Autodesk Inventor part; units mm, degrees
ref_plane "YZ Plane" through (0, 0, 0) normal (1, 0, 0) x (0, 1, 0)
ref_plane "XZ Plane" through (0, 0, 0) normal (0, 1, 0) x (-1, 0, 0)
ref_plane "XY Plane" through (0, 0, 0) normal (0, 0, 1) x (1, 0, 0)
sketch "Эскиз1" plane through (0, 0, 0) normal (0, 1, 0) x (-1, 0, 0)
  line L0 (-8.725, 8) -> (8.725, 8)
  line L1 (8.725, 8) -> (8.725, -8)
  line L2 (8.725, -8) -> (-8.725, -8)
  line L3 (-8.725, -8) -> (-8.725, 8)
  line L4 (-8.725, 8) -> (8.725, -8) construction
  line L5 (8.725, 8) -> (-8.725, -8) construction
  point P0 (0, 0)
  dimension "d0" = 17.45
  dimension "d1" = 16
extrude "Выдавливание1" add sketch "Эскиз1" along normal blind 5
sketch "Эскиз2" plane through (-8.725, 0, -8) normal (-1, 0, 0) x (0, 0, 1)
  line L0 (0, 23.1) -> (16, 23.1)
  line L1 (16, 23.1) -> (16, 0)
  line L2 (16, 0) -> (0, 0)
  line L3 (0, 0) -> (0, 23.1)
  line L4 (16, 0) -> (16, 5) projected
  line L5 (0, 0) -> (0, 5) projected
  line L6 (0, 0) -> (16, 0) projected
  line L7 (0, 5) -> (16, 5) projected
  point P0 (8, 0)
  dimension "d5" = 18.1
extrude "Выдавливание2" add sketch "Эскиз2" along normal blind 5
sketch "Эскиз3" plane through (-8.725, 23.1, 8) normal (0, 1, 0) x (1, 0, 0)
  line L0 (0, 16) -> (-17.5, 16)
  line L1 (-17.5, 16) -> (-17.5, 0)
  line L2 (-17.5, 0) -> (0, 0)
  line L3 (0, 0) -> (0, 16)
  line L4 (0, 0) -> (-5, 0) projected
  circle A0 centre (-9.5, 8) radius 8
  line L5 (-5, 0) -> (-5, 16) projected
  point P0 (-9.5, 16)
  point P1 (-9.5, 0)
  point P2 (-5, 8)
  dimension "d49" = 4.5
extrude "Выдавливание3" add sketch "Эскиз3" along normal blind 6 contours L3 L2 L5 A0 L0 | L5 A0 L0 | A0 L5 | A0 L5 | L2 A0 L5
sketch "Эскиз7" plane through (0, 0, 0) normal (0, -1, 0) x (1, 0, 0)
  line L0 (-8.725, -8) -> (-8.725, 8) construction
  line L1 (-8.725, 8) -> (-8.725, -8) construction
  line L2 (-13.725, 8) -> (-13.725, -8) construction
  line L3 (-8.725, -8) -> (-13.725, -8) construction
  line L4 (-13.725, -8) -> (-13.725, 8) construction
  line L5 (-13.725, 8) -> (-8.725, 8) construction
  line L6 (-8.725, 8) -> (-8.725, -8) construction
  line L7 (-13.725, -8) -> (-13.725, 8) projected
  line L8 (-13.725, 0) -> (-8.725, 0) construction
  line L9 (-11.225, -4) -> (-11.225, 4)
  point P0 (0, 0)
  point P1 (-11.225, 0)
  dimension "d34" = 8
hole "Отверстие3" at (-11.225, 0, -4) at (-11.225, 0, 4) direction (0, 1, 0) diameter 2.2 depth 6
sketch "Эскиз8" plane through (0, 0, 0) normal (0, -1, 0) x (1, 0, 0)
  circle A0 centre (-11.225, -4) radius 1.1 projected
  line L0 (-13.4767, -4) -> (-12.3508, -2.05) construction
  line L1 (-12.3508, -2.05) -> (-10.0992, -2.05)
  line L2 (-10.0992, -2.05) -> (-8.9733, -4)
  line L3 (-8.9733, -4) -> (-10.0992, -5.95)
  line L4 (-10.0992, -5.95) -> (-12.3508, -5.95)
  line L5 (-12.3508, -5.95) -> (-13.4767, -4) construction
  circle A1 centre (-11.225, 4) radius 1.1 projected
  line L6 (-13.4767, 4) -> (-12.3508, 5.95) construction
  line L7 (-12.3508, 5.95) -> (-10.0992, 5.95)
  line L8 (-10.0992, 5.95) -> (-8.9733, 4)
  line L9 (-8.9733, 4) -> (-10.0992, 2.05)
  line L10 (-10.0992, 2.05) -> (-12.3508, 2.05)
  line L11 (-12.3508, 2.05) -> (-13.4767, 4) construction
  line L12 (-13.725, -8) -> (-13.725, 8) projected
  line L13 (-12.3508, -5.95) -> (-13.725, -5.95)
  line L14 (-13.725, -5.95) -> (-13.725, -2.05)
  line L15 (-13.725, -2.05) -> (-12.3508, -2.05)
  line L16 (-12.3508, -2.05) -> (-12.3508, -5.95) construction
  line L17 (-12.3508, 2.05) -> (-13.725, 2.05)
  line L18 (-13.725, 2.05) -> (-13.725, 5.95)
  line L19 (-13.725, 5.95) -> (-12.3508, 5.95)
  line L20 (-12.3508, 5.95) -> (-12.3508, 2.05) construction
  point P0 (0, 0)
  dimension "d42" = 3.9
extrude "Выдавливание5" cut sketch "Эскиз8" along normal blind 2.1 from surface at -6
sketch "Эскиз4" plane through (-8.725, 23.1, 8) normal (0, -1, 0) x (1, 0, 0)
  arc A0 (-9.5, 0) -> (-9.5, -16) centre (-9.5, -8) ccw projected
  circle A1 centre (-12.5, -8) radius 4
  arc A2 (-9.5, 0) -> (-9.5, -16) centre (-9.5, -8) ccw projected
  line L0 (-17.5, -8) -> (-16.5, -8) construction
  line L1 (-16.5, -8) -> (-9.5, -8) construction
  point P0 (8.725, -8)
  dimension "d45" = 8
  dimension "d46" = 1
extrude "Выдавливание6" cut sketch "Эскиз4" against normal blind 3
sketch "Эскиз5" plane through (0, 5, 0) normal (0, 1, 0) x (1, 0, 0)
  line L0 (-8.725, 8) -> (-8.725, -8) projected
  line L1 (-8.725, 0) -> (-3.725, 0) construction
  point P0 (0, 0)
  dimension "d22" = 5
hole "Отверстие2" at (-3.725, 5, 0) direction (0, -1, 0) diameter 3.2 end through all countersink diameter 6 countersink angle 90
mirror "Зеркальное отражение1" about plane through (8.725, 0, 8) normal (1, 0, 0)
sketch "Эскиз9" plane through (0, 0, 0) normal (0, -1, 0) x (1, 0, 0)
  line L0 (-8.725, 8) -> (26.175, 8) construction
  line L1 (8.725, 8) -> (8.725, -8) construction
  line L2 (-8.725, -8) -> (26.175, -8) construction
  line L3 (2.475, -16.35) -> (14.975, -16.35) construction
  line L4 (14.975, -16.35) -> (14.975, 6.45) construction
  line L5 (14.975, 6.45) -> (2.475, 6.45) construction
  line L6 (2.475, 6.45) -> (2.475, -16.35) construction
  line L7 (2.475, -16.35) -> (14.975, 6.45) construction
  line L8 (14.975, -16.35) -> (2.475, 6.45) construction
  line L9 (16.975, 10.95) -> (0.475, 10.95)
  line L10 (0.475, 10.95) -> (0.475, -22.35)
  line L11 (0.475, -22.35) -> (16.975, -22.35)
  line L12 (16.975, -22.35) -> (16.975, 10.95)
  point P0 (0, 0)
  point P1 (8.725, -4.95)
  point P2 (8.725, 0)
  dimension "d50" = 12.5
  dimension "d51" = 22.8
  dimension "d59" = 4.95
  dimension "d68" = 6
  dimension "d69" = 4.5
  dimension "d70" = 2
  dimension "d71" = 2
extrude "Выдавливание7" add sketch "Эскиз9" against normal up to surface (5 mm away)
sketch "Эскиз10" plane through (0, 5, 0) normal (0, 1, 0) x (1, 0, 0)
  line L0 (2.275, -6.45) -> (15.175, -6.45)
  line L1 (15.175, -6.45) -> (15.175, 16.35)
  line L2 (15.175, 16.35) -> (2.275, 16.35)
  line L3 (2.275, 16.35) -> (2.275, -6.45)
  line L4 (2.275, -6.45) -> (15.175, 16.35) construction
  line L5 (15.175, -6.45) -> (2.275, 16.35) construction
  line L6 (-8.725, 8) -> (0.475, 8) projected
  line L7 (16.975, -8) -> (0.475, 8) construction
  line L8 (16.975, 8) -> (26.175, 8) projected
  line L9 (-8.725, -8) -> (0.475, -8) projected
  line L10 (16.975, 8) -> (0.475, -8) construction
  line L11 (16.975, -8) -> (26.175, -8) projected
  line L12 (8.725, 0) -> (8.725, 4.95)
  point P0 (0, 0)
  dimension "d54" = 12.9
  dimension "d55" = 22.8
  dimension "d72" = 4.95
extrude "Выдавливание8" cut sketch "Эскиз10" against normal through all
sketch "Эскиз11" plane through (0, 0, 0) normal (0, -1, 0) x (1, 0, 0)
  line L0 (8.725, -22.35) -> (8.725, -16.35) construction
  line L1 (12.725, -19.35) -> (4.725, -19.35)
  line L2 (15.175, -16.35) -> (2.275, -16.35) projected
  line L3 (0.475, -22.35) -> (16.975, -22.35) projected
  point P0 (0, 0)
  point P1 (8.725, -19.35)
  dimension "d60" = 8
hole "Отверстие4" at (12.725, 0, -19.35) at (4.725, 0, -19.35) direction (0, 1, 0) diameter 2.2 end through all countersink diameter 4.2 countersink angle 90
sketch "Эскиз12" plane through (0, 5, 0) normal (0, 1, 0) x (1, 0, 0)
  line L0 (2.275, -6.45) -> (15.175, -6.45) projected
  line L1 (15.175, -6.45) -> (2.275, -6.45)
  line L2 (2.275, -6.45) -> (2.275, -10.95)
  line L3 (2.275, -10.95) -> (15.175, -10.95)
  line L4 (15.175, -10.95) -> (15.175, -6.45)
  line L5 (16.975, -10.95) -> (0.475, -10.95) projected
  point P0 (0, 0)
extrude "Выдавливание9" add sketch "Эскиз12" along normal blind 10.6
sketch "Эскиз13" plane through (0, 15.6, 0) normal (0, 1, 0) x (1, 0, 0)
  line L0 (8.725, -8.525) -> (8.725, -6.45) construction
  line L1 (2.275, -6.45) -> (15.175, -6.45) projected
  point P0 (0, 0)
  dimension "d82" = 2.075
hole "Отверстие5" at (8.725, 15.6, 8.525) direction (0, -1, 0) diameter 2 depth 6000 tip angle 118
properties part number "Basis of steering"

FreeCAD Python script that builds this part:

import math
import FreeCAD as App
import Part
import Sketcher

V = App.Vector


def add_polygon(sketch, points):
    """Adds a closed chain of lines whose ends are joined by coincident constraints."""
    first, n = sketch.GeometryCount, len(points)
    for a, b in zip(points, points[1:] + points[:1]):
        sketch.addGeometry(Part.LineSegment(App.Vector(*a, 0), App.Vector(*b, 0)), False)
    for i in range(n):
        sketch.addConstraint(Sketcher.Constraint("Coincident", first + i, 2, first + (i + 1) % n, 1))

doc = App.newDocument("Part")
body = doc.addObject("PartDesign::Body", "Body")

sketch1 = body.newObject("Sketcher::SketchObject", "Sketch")
sketch1.AttachmentSupport = (doc.getObject("XZ_Plane"), [""])
sketch1.MapMode = "FlatFace"
add_polygon(sketch1, [(-9, 8), (9, 8), (9, -8), (-9, -8)])
sketch1.addConstraint(Sketcher.Constraint("Horizontal", 0))
sketch1.addConstraint(Sketcher.Constraint("Vertical", 1))
sketch1.addConstraint(Sketcher.Constraint("Horizontal", 2))
sketch1.addConstraint(Sketcher.Constraint("Vertical", 3))
sketch1.addConstraint(Sketcher.Constraint("Symmetric", 0, 2, 2, 2, -1, 1))
sketch1.addConstraint(Sketcher.Constraint("DistanceY", 1, 2, 1, 1, 16.0))
sketch1.addConstraint(Sketcher.Constraint("DistanceX", 0, 1, 0, 2, 17.45))
pad1 = body.newObject("PartDesign::Pad", "Pad")
pad1.Profile = sketch1
pad1.Length = 5
pad1.Reversed = True

sketch2 = body.newObject("Sketcher::SketchObject", "Sketch001")
sketch2.AttachmentSupport = (doc.getObject("YZ_Plane"), [""])
sketch2.MapMode = "FlatFace"
sketch2.AttachmentOffset = App.Placement(V(0, 0, -8.725), App.Rotation())
add_polygon(sketch2, [(23, 8), (23, -8), (0, -8), (0, 8)])
sketch2.addConstraint(Sketcher.Constraint("Vertical", 0))
sketch2.addConstraint(Sketcher.Constraint("Horizontal", 1))
sketch2.addConstraint(Sketcher.Constraint("Vertical", 2))
sketch2.addConstraint(Sketcher.Constraint("Horizontal", 3))
sketch2.addConstraint(Sketcher.Constraint("Symmetric", 1, 2, 2, 2, -1, 1))
sketch2.addConstraint(Sketcher.Constraint("DistanceY", 0, 2, 0, 1, 16.0))
sketch2.addConstraint(Sketcher.Constraint("DistanceX", 1, 2, 1, 1, 23.1))
pad2 = body.newObject("PartDesign::Pad", "Pad001")
pad2.Profile = sketch2
pad2.Length = 5
pad2.Reversed = True

sketch3 = body.newObject("Sketcher::SketchObject", "Sketch002")
sketch3.AttachmentSupport = (doc.getObject("XZ_Plane"), [""])
sketch3.MapMode = "FlatFace"
sketch3.AttachmentOffset = App.Placement(V(0, 0, -23.1), App.Rotation())
sketch3.addGeometry(Part.LineSegment(V(-9, 8, 0), V(-9, -8, 0)), False)
sketch3.addGeometry(Part.LineSegment(V(-9, -8, 0), V(-18, -8, 0)), False)
sketch3.addGeometry(Part.ArcOfCircle(Part.Circle(V(-18, 0, 0), V(0, 0, 1), 8), math.radians(90), math.radians(270)), False)
sketch3.addGeometry(Part.LineSegment(V(-18, 8, 0), V(-9, 8, 0)), False)
sketch3.addConstraint(Sketcher.Constraint("Coincident", 0, 2, 1, 1))
sketch3.addConstraint(Sketcher.Constraint("Tangent", 1, 2, 2, 2))
sketch3.addConstraint(Sketcher.Constraint("Tangent", 2, 1, 3, 1))
sketch3.addConstraint(Sketcher.Constraint("Coincident", 3, 2, 0, 1))
sketch3.addConstraint(Sketcher.Constraint("Vertical", 0))
sketch3.addConstraint(Sketcher.Constraint("Horizontal", 1))
sketch3.addConstraint(Sketcher.Constraint("Horizontal", 3))
sketch3.addConstraint(Sketcher.Constraint("PointOnObject", 2, 3, -1))
sketch3.addConstraint(Sketcher.Constraint("Radius", 2, 8.0))
sketch3.addConstraint(Sketcher.Constraint("DistanceX", 1, 2, 1, 1, 9.5))
sketch3.addConstraint(Sketcher.Constraint("DistanceX", 2, 3, -1, 1, 18.225))
pad3 = body.newObject("PartDesign::Pad", "Pad002")
pad3.Profile = sketch3
pad3.Length = 6
pad3.Reversed = True

sketch4 = body.newObject("Sketcher::SketchObject", "Sketch003")
sketch4.AttachmentSupport = (doc.getObject("XZ_Plane"), [""])
sketch4.MapMode = "FlatFace"
sketch4.addGeometry(Part.Circle(V(-11.2, -4, 0), V(0, 0, 1), 1.1), False)
sketch4.addGeometry(Part.Circle(V(-11.2, 4, 0), V(0, 0, 1), 1.1), False)
sketch4.addConstraint(Sketcher.Constraint("Equal", 0, 1))
sketch4.addConstraint(Sketcher.Constraint("Symmetric", 0, 3, 1, 3, -1))
sketch4.addConstraint(Sketcher.Constraint("Diameter", 0, 2.2))
sketch4.addConstraint(Sketcher.Constraint("DistanceY", 0, 3, -1, 1, 4.0))
sketch4.addConstraint(Sketcher.Constraint("DistanceX", 0, 3, -1, 1, 11.225))
doc.recompute()
hole = body.newObject("PartDesign::Hole", "Hole")
hole.Profile = sketch4
hole.ThreadType = "None"
hole.Diameter = 2.2
hole.DepthType = "Dimension"
hole.Depth = 6
hole.DrillPoint = "Flat"

sketch5 = body.newObject("Sketcher::SketchObject", "Sketch004")
sketch5.AttachmentSupport = (doc.getObject("XZ_Plane"), [""])
sketch5.MapMode = "FlatFace"
sketch5.AttachmentOffset = App.Placement(V(0, 0, -6), App.Rotation())
add_polygon(sketch5, [(-13.7, 6), (-13.7, 2), (-10.1, 2), (-9, 4), (-10.1, 6)])
sketch5.addGeometry(Part.Circle(V(-11.2, 4, 0), V(0, 0, 1), 1.1), False)
add_polygon(sketch5, [(-10.1, -2), (-13.7, -2), (-13.7, -6), (-10.1, -6), (-9, -4)])
sketch5.addGeometry(Part.Circle(V(-11.2, -4, 0), V(0, 0, 1), 1.1), False)
sketch5.addConstraint(Sketcher.Constraint("Vertical", 0))
sketch5.addConstraint(Sketcher.Constraint("Horizontal", 1))
sketch5.addConstraint(Sketcher.Constraint("Horizontal", 4))
sketch5.addConstraint(Sketcher.Constraint("Horizontal", 6))
sketch5.addConstraint(Sketcher.Constraint("Vertical", 7))
sketch5.addConstraint(Sketcher.Constraint("Horizontal", 8))
sketch5.addConstraint(Sketcher.Constraint("Equal", 5, 11))
sketch5.addConstraint(Sketcher.Constraint("Symmetric", 5, 3, 11, 3, -1))
sketch5.addConstraint(Sketcher.Constraint("Symmetric", 0, 2, 6, 2, -1))
sketch5.addConstraint(Sketcher.Constraint("Symmetric", 3, 2, 8, 2, -1))
sketch5.addConstraint(Sketcher.Constraint("Symmetric", 2, 2, 9, 2, -1))
sketch5.addConstraint(Sketcher.Constraint("Parallel", 2, 9))
sketch5.addConstraint(Sketcher.Constraint("Parallel", 3, 10))
sketch5.addConstraint(Sketcher.Constraint("Horizontal", 5, 3, 2, 2))
sketch5.addConstraint(Sketcher.Constraint("Vertical", 1, 2, 3, 2))
sketch5.addConstraint(Sketcher.Constraint("DistanceY", 0, 2, 0, 1, 3.9))
sketch5.addConstraint(Sketcher.Constraint("Diameter", 5, 2.2))
sketch5.addConstraint(Sketcher.Constraint("DistanceY", -1, 1, 5, 3, 4.0))
sketch5.addConstraint(Sketcher.Constraint("DistanceX", 0, 2, 5, 3, 2.5))
sketch5.addConstraint(Sketcher.Constraint("DistanceX", 1, 1, 1, 2, 3.6258))
sketch5.addConstraint(Sketcher.Constraint("DistanceX", 5, 3, -1, 1, 11.225))
sketch5.addConstraint(Sketcher.Constraint("DistanceX", 1, 2, 2, 2, 1.126))
pocket1 = body.newObject("PartDesign::Pocket", "Pocket")
pocket1.Profile = sketch5
pocket1.Length = 2.1
pocket1.Reversed = True

sketch6 = body.newObject("Sketcher::SketchObject", "Sketch005")
sketch6.AttachmentSupport = (doc.getObject("XZ_Plane"), [""])
sketch6.MapMode = "FlatFace"
sketch6.AttachmentOffset = App.Placement(V(0, 0, -23.1), App.Rotation())
sketch6.addGeometry(Part.Circle(V(-21.2, 0, 0), V(0, 0, 1), 4), False)
sketch6.addConstraint(Sketcher.Constraint("PointOnObject", 0, 3, -1))
sketch6.addConstraint(Sketcher.Constraint("Diameter", 0, 8.0))
sketch6.addConstraint(Sketcher.Constraint("DistanceX", 0, 3, -1, 1, 21.225))
pocket2 = body.newObject("PartDesign::Pocket", "Pocket001")
pocket2.Profile = sketch6
pocket2.Length = 3

sketch7 = body.newObject("Sketcher::SketchObject", "Sketch006")
sketch7.AttachmentSupport = (doc.getObject("XZ_Plane"), [""])
sketch7.MapMode = "FlatFace"
sketch7.AttachmentOffset = App.Placement(V(0, 0, -5), App.Rotation())
sketch7.addGeometry(Part.Circle(V(-3.7, 0, 0), V(0, 0, 1), 1.6), False)
sketch7.addConstraint(Sketcher.Constraint("PointOnObject", 0, 3, -1))
sketch7.addConstraint(Sketcher.Constraint("Diameter", 0, 3.2))
sketch7.addConstraint(Sketcher.Constraint("DistanceX", 0, 3, -1, 1, 3.725))
doc.recompute()
hole2 = body.newObject("PartDesign::Hole", "Hole001")
hole2.Profile = sketch7
hole2.ThreadType = "None"
hole2.Diameter = 3.2
hole2.DepthType = "ThroughAll"
hole2.HoleCutType = "Countersink"
hole2.HoleCutDiameter = 6
hole2.HoleCutCountersinkAngle = 90
hole2.Reversed = True
doc.recompute()

datumplane = body.newObject("PartDesign::Plane", "DatumPlane")
datumplane.AttachmentSupport = (doc.getObject("YZ_Plane"), [""])
datumplane.MapMode = "FlatFace"
datumplane.AttachmentOffset = App.Placement(V(0, 0, 8.725), App.Rotation())
mirrored = body.newObject("PartDesign::Mirrored", "Mirrored")
mirrored.TransformMode = "Transform body"
mirrored.MirrorPlane = (datumplane, [""])
body.Tip = mirrored

sketch8 = body.newObject("Sketcher::SketchObject", "Sketch007")
sketch8.AttachmentSupport = (doc.getObject("XZ_Plane"), [""])
sketch8.MapMode = "FlatFace"
add_polygon(sketch8, [(17, -22), (17, 11), (0, 11), (0, -22)])
sketch8.addConstraint(Sketcher.Constraint("Vertical", 0))
sketch8.addConstraint(Sketcher.Constraint("Horizontal", 1))
sketch8.addConstraint(Sketcher.Constraint("Vertical", 2))
sketch8.addConstraint(Sketcher.Constraint("Horizontal", 3))
sketch8.addConstraint(Sketcher.Constraint("DistanceX", 1, 2, 1, 1, 16.5))
sketch8.addConstraint(Sketcher.Constraint("DistanceY", 0, 1, 0, 2, 33.3))
sketch8.addConstraint(Sketcher.Constraint("DistanceY", -1, 1, 0, 2, 10.95))
sketch8.addConstraint(Sketcher.Constraint("DistanceX", -1, 1, 0, 2, 16.975))
pad4 = body.newObject("PartDesign::Pad", "Pad003")
pad4.Profile = sketch8
pad4.Length = 5
pad4.Reversed = True

sketch9 = body.newObject("Sketcher::SketchObject", "Sketch008")
sketch9.AttachmentSupport = (doc.getObject("XZ_Plane"), [""])
sketch9.MapMode = "FlatFace"
sketch9.AttachmentOffset = App.Placement(V(0, 0, -5), App.Rotation())
add_polygon(sketch9, [(2, -16), (2, 6), (15, 6), (15, -16)])
sketch9.addConstraint(Sketcher.Constraint("Vertical", 0))
sketch9.addConstraint(Sketcher.Constraint("Horizontal", 1))
sketch9.addConstraint(Sketcher.Constraint("Vertical", 2))
sketch9.addConstraint(Sketcher.Constraint("Horizontal", 3))
sketch9.addConstraint(Sketcher.Constraint("DistanceX", 1, 1, 1, 2, 12.9))
sketch9.addConstraint(Sketcher.Constraint("DistanceY", 0, 1, 0, 2, 22.8))
sketch9.addConstraint(Sketcher.Constraint("DistanceY", -1, 1, 0, 2, 6.45))
sketch9.addConstraint(Sketcher.Constraint("DistanceX", -1, 1, 0, 2, 2.275))
pocket3 = body.newObject("PartDesign::Pocket", "Pocket002")
pocket3.Profile = sketch9
pocket3.Type = "ThroughAll"
pocket3.Reversed = True

sketch10 = body.newObject("Sketcher::SketchObject", "Sketch009")
sketch10.AttachmentSupport = (doc.getObject("XZ_Plane"), [""])
sketch10.MapMode = "FlatFace"
sketch10.addGeometry(Part.Circle(V(12.7, -19.4, 0), V(0, 0, 1), 1.1), False)
sketch10.addGeometry(Part.Circle(V(4.7, -19.4, 0), V(0, 0, 1), 1.1), False)
sketch10.addConstraint(Sketcher.Constraint("Equal", 0, 1))
sketch10.addConstraint(Sketcher.Constraint("Horizontal", 0, 3, 1, 3))
sketch10.addConstraint(Sketcher.Constraint("Diameter", 0, 2.2))
sketch10.addConstraint(Sketcher.Constraint("DistanceX", 1, 3, 0, 3, 8.0))
sketch10.addConstraint(Sketcher.Constraint("DistanceY", 0, 3, -1, 1, 19.35))
sketch10.addConstraint(Sketcher.Constraint("DistanceX", -1, 1, 0, 3, 12.725))
doc.recompute()
hole3 = body.newObject("PartDesign::Hole", "Hole002")
hole3.Profile = sketch10
hole3.ThreadType = "None"
hole3.Diameter = 2.2
hole3.DepthType = "ThroughAll"
hole3.HoleCutType = "Countersink"
hole3.HoleCutDiameter = 4.2
hole3.HoleCutCountersinkAngle = 90

sketch11 = body.newObject("Sketcher::SketchObject", "Sketch010")
sketch11.AttachmentSupport = (doc.getObject("XZ_Plane"), [""])
sketch11.MapMode = "FlatFace"
sketch11.AttachmentOffset = App.Placement(V(0, 0, -5), App.Rotation())
add_polygon(sketch11, [(15.2, 6.5), (2.3, 6.5), (2.3, 10.9), (15.2, 10.9)])
sketch11.addConstraint(Sketcher.Constraint("Horizontal", 0))
sketch11.addConstraint(Sketcher.Constraint("Vertical", 1))
sketch11.addConstraint(Sketcher.Constraint("Horizontal", 2))
sketch11.addConstraint(Sketcher.Constraint("Vertical", 3))
sketch11.addConstraint(Sketcher.Constraint("DistanceX", 0, 2, 0, 1, 12.9))
sketch11.addConstraint(Sketcher.Constraint("DistanceY", 1, 1, 1, 2, 4.5))
sketch11.addConstraint(Sketcher.Constraint("DistanceY", -1, 1, 0, 2, 6.45))
sketch11.addConstraint(Sketcher.Constraint("DistanceX", -1, 1, 0, 2, 2.275))
pad5 = body.newObject("PartDesign::Pad", "Pad004")
pad5.Profile = sketch11
pad5.Length = 10.6
pad5.Reversed = True

sketch12 = body.newObject("Sketcher::SketchObject", "Sketch011")
sketch12.AttachmentSupport = (doc.getObject("XZ_Plane"), [""])
sketch12.MapMode = "FlatFace"
sketch12.AttachmentOffset = App.Placement(V(0, 0, -15.6), App.Rotation())
sketch12.addGeometry(Part.Circle(V(8.7, 8.5, 0), V(0, 0, 1), 1), False)
sketch12.addConstraint(Sketcher.Constraint("Diameter", 0, 2.0))
sketch12.addConstraint(Sketcher.Constraint("DistanceX", -1, 1, 0, 3, 8.725))
sketch12.addConstraint(Sketcher.Constraint("DistanceY", -1, 1, 0, 3, 8.525))
doc.recompute()
hole4 = body.newObject("PartDesign::Hole", "Hole003")
hole4.Profile = sketch12
hole4.ThreadType = "None"
hole4.Diameter = 2
hole4.DepthType = "Dimension"
hole4.Depth = 6000
hole4.DrillPoint = "Angled"
hole4.DrillPointAngle = 118
hole4.Reversed = True

doc.recompute()
